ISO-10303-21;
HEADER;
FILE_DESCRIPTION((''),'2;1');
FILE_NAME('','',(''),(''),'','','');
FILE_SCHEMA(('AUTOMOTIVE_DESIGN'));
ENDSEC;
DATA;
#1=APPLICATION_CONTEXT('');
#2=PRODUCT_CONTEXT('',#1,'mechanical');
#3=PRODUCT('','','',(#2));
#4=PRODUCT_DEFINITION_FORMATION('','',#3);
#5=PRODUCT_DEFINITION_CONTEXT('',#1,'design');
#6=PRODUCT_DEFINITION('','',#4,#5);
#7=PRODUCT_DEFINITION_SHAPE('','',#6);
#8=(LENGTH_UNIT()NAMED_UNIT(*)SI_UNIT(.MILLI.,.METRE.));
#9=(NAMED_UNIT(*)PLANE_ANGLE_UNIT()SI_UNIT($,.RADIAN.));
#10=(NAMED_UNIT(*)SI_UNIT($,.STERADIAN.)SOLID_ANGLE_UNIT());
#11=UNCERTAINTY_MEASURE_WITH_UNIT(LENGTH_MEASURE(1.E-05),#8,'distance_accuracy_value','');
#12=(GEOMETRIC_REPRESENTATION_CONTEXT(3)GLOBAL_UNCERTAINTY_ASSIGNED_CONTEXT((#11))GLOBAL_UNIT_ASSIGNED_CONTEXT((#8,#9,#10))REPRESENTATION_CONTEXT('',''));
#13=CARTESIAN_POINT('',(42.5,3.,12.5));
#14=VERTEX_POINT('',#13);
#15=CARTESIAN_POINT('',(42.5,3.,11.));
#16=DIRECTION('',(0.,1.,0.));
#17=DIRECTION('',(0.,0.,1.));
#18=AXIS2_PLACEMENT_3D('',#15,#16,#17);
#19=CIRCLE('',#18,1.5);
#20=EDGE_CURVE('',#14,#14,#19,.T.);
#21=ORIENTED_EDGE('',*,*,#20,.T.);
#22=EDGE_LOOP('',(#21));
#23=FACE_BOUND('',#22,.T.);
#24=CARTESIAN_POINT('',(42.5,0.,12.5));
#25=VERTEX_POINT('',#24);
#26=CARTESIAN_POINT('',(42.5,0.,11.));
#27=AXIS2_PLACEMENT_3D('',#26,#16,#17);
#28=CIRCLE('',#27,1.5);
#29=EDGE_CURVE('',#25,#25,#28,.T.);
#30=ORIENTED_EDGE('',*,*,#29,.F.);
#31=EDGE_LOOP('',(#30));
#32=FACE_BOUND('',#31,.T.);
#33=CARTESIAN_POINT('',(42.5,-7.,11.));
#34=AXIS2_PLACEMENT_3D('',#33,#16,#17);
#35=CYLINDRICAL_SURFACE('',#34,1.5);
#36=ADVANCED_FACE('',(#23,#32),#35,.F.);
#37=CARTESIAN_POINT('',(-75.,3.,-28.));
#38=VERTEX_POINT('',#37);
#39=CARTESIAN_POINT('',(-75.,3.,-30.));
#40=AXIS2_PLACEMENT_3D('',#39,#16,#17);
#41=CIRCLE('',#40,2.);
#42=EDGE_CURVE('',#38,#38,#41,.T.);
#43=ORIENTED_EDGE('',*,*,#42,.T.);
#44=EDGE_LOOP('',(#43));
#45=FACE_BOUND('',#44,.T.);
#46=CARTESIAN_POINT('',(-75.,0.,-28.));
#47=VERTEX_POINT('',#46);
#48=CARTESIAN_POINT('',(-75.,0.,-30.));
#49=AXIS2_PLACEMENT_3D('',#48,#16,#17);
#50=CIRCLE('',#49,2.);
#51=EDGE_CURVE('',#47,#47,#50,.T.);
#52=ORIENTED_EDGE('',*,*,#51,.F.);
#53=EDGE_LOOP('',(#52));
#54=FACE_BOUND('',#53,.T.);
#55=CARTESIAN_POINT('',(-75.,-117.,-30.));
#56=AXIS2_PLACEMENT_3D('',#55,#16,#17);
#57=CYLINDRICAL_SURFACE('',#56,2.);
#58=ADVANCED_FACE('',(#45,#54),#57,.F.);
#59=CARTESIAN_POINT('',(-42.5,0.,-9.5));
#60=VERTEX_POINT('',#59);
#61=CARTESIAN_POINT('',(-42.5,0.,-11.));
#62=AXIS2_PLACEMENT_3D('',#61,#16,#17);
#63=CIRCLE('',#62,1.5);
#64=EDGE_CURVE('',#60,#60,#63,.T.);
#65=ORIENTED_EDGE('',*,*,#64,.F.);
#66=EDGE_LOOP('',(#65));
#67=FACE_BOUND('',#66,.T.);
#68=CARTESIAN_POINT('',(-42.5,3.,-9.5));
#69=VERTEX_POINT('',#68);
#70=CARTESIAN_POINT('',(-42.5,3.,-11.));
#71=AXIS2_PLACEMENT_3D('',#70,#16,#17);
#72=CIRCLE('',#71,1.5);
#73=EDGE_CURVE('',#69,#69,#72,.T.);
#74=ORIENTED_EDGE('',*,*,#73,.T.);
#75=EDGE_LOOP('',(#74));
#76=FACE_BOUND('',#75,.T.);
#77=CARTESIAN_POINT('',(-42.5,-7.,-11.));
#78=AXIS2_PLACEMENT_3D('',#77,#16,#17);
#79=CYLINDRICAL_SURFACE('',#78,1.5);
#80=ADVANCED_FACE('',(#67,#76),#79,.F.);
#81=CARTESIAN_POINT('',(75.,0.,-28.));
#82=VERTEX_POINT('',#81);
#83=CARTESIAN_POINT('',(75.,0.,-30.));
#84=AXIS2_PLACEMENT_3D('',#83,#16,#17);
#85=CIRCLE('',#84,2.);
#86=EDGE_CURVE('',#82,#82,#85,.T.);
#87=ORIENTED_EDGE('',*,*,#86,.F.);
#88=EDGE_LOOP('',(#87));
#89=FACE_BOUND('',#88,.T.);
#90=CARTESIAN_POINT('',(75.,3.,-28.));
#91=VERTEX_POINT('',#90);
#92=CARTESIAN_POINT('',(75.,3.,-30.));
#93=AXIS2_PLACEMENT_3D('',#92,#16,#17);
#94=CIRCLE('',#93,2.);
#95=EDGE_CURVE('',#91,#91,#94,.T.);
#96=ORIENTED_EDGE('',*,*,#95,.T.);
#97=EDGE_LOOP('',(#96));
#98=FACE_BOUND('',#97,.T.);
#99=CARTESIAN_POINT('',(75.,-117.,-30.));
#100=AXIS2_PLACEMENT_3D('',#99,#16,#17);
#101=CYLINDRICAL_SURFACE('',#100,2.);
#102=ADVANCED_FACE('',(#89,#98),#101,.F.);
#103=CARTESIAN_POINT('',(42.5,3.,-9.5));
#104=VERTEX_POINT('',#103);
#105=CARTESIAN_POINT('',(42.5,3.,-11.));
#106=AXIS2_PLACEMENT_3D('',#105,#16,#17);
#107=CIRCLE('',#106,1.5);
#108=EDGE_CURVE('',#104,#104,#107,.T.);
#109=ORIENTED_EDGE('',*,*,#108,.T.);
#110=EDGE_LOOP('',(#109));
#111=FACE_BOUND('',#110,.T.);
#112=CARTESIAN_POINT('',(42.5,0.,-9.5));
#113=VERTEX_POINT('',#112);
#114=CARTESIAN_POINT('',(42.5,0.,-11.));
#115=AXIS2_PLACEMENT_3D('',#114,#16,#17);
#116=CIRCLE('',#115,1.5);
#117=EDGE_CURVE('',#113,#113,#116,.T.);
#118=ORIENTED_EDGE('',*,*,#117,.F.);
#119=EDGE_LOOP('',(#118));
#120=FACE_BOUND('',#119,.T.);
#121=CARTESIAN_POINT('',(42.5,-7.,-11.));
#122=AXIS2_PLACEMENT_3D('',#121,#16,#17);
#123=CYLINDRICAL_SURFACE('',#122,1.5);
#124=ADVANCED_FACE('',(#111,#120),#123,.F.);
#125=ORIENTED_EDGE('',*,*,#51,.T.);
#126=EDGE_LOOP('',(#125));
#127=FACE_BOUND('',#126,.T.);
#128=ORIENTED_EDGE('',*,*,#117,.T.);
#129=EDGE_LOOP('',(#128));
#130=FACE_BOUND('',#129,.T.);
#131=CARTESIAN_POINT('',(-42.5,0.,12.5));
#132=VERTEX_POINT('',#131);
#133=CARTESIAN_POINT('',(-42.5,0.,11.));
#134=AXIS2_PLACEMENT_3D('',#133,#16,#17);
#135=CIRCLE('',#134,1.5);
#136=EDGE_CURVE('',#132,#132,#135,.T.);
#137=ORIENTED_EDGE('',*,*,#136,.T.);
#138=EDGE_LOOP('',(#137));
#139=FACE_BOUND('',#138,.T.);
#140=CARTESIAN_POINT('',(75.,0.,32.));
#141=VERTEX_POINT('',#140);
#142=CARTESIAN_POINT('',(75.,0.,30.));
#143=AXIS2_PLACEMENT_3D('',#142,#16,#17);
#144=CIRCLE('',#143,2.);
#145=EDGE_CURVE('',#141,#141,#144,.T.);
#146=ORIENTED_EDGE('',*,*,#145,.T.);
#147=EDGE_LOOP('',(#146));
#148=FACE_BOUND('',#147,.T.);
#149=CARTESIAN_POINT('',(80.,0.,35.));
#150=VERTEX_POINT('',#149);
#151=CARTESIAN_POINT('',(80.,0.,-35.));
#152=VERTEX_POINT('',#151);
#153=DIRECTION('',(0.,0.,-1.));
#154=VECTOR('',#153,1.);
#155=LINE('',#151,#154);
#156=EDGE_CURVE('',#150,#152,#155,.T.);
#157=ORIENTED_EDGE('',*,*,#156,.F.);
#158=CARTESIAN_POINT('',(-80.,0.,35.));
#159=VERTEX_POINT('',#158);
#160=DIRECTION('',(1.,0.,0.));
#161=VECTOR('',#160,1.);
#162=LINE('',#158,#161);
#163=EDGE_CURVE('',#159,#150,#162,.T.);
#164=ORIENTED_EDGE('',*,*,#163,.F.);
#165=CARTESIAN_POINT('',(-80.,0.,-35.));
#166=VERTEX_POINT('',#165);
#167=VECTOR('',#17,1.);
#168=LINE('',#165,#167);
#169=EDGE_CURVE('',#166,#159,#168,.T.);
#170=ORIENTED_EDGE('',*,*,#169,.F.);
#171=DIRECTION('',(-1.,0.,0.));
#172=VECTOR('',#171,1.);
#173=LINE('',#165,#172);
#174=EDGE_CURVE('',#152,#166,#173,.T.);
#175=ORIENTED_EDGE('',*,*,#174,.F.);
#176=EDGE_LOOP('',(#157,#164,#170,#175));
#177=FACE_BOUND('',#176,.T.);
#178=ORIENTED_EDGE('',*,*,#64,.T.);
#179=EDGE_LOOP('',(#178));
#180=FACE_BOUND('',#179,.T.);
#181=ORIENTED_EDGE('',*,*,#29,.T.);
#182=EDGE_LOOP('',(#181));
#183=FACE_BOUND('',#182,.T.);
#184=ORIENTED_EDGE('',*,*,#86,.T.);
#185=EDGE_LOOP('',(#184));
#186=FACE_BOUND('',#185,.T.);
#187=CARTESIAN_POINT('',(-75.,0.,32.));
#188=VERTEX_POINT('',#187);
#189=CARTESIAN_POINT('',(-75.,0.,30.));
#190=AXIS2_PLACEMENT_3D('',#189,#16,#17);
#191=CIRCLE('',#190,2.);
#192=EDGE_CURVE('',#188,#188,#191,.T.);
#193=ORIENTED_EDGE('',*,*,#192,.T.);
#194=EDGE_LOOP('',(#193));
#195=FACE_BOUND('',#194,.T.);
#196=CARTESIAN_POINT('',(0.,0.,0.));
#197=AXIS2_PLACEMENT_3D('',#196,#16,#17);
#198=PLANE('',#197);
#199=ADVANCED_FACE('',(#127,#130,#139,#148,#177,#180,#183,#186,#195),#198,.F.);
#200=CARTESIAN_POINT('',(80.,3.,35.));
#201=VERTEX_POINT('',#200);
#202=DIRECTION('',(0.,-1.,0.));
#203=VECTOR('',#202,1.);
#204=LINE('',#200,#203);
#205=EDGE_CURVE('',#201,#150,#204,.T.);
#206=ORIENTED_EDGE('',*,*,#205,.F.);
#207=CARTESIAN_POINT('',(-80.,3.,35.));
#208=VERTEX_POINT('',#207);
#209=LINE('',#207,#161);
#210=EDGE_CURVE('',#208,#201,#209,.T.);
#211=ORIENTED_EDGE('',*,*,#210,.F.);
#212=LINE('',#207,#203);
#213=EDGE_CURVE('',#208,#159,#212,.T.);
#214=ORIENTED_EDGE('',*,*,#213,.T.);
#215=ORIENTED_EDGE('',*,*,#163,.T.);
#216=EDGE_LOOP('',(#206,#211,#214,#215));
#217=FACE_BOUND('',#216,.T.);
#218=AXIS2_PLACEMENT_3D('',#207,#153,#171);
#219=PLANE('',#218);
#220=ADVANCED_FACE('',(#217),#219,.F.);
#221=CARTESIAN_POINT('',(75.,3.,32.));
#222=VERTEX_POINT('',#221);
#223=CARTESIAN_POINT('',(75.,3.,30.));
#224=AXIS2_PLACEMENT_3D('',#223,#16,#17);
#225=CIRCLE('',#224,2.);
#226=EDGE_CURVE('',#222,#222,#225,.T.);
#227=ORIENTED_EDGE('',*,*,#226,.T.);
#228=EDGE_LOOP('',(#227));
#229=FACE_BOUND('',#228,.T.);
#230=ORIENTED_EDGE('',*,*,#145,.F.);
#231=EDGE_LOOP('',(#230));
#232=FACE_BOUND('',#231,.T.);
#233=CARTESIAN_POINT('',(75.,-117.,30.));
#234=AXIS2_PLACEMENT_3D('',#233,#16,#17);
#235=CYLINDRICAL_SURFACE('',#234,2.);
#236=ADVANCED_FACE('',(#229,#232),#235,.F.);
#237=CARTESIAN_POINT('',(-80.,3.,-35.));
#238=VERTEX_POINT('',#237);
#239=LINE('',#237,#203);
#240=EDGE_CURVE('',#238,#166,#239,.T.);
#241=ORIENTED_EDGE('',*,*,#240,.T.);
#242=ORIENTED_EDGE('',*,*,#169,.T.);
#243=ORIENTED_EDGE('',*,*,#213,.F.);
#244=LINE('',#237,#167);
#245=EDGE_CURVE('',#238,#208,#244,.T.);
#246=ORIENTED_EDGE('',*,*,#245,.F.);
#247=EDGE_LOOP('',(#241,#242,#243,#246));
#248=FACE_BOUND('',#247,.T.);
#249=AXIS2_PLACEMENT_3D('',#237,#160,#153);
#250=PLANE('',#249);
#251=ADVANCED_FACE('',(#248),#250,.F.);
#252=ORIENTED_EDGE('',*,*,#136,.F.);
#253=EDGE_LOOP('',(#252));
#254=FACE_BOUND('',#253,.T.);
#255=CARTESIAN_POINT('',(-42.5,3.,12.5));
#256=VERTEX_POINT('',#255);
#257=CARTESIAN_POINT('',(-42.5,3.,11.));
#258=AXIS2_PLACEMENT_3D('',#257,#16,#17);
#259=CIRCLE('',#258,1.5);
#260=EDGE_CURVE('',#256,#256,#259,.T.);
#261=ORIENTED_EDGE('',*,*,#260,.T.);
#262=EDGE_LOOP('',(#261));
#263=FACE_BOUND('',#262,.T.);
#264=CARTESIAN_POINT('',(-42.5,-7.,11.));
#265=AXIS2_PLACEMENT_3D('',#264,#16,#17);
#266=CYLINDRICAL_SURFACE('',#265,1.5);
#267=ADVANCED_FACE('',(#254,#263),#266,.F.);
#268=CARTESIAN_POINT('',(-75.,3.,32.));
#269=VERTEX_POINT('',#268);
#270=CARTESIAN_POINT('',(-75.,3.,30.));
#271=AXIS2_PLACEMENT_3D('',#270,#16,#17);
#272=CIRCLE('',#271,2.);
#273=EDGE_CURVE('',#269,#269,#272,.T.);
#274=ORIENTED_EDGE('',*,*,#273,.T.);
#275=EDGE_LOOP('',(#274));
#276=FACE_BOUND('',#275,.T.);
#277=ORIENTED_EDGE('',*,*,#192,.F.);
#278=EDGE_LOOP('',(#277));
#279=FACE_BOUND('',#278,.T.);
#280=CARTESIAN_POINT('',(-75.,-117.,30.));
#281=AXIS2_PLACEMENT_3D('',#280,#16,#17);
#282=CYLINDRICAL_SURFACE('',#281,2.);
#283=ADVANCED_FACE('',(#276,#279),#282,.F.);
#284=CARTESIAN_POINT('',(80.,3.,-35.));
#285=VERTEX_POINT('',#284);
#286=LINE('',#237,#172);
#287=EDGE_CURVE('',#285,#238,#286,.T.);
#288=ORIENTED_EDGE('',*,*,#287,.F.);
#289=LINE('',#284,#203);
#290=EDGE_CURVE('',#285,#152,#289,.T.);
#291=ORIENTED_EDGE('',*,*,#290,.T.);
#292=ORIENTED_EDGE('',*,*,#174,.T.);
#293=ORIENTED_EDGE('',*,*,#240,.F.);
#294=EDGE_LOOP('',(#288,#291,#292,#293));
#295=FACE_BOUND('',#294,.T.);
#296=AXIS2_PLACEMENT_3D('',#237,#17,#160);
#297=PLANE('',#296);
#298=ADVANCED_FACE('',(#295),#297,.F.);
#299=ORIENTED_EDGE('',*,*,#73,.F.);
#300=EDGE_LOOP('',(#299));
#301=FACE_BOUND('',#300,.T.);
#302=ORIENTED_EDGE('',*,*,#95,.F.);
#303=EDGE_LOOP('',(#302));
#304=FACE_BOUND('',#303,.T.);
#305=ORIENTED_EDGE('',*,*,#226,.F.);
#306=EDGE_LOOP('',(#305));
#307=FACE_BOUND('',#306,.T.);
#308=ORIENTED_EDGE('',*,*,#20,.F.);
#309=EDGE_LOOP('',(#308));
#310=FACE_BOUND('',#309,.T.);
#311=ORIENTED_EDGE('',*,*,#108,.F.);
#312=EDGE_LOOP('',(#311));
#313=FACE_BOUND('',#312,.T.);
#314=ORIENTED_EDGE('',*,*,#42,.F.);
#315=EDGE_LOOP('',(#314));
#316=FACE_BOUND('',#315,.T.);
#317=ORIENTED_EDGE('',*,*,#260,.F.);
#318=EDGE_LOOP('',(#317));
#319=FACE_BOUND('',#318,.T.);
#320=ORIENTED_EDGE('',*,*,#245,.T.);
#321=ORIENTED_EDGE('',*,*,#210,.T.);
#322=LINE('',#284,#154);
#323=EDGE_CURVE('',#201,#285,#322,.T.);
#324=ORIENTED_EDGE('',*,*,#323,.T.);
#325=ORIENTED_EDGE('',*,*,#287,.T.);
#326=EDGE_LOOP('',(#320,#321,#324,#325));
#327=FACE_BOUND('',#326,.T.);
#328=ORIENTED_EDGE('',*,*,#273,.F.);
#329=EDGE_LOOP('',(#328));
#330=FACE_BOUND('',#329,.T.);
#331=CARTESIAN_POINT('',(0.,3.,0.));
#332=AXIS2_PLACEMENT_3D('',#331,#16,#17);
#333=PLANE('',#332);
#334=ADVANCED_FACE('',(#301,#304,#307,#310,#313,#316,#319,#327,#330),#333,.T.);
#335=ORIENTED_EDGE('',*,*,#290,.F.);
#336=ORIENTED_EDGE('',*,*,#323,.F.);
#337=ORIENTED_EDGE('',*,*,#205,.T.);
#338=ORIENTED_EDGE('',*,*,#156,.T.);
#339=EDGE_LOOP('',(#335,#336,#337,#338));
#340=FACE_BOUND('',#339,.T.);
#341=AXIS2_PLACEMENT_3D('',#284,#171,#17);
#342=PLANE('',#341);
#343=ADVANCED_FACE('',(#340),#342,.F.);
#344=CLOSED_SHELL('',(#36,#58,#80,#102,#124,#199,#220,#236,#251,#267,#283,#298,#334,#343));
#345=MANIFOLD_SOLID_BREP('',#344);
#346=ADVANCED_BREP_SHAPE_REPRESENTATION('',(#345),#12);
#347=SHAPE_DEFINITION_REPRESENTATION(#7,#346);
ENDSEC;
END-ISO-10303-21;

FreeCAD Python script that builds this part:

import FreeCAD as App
import Part
import Sketcher

V = App.Vector

doc = App.newDocument("Part")
params = doc.addObject("Spreadsheet::Sheet", "Params")
for row, (alias, value) in enumerate([
    ("sketch1_width", "160 mm"),
    ("sketch1_height", "70 mm"),
    ("pad1_length", "3 mm"),
    ("sketch2_diameter", "4 mm"),
    ("pocket1_length", "120 mm"),
    ("sketch3_diameter", "3 mm"),
    ("pocket2_length", "10 mm"),
], start=1):
    params.set(f"A{row}", alias)
    params.set(f"B{row}", "=" + value)
    params.setAlias(f"B{row}", alias)

body = doc.addObject("PartDesign::Body", "Body")

sketch1 = body.newObject("Sketcher::SketchObject", "Sketch")
sketch1.AttachmentSupport = (doc.getObject("XZ_Plane"), [""])
sketch1.MapMode = "FlatFace"
sketch1.addGeometry(Part.LineSegment(V(-80, -35, 0), V(-80, 35, 0)), False)
sketch1.addGeometry(Part.LineSegment(V(-80, 35, 0), V(80, 35, 0)), False)
sketch1.addGeometry(Part.LineSegment(V(80, 35, 0), V(80, -35, 0)), False)
sketch1.addGeometry(Part.LineSegment(V(80, -35, 0), V(-80, -35, 0)), False)
sketch1.addConstraint(Sketcher.Constraint("Coincident", 0, 2, 1, 1))
sketch1.addConstraint(Sketcher.Constraint("Coincident", 1, 2, 2, 1))
sketch1.addConstraint(Sketcher.Constraint("Coincident", 2, 2, 3, 1))
sketch1.addConstraint(Sketcher.Constraint("Coincident", 3, 2, 0, 1))
sketch1.addConstraint(Sketcher.Constraint("Vertical", 0))
sketch1.addConstraint(Sketcher.Constraint("Horizontal", 1))
sketch1.addConstraint(Sketcher.Constraint("Vertical", 2))
sketch1.addConstraint(Sketcher.Constraint("Horizontal", 3))
sketch1.addConstraint(Sketcher.Constraint("Symmetric", 0, 2, 2, 2, -1, 1))
sketch1.addConstraint(Sketcher.Constraint("DistanceX", 1, 1, 1, 2, 160.0))
sketch1.addConstraint(Sketcher.Constraint("DistanceY", 0, 1, 0, 2, 70.0))
sketch1.setExpression("Constraints[9]", "Params.sketch1_width")
sketch1.setExpression("Constraints[10]", "Params.sketch1_height")
pad1 = body.newObject("PartDesign::Pad", "Pad")
pad1.Profile = sketch1
pad1.setExpression("Length", "Params.pad1_length")
pad1.Reversed = True

sketch2 = body.newObject("Sketcher::SketchObject", "Sketch001")
sketch2.AttachmentSupport = (doc.getObject("XZ_Plane"), [""])
sketch2.MapMode = "FlatFace"
sketch2.AttachmentOffset = App.Placement(V(0, 0, -3), App.Rotation())
sketch2.addGeometry(Part.Circle(V(-75, -30, 0), V(0, 0, 1), 2), False)
sketch2.addGeometry(Part.Circle(V(-75, 30, 0), V(0, 0, 1), 2), False)
sketch2.addGeometry(Part.Circle(V(75, 30, 0), V(0, 0, 1), 2), False)
sketch2.addGeometry(Part.Circle(V(75, -30, 0), V(0, 0, 1), 2), False)
sketch2.addConstraint(Sketcher.Constraint("Equal", 0, 1))
sketch2.addConstraint(Sketcher.Constraint("Equal", 1, 2))
sketch2.addConstraint(Sketcher.Constraint("Equal", 2, 3))
sketch2.addConstraint(Sketcher.Constraint("Symmetric", 0, 3, 2, 3, -1, 1))
sketch2.addConstraint(Sketcher.Constraint("Symmetric", 1, 3, 3, 3, -1, 1))
sketch2.addConstraint(Sketcher.Constraint("Symmetric", 1, 3, 2, 3, -2))
sketch2.addConstraint(Sketcher.Constraint("Diameter", 0, 4.0))
sketch2.addConstraint(Sketcher.Constraint("DistanceX", 0, 3, -1, 1, 75.0))
sketch2.addConstraint(Sketcher.Constraint("DistanceY", 0, 3, -1, 1, 30.0))
sketch2.setExpression("Constraints[6]", "Params.sketch2_diameter")
pocket1 = body.newObject("PartDesign::Pocket", "Pocket")
pocket1.Profile = sketch2
pocket1.setExpression("Length", "Params.pocket1_length")
pocket1.Reversed = True

sketch3 = body.newObject("Sketcher::SketchObject", "Sketch002")
sketch3.AttachmentSupport = (doc.getObject("XZ_Plane"), [""])
sketch3.MapMode = "FlatFace"
sketch3.AttachmentOffset = App.Placement(V(0, 0, -3), App.Rotation())
sketch3.addGeometry(Part.Circle(V(-42.5, -11, 0), V(0, 0, 1), 1.5), False)
sketch3.addGeometry(Part.Circle(V(-42.5, 11, 0), V(0, 0, 1), 1.5), False)
sketch3.addGeometry(Part.Circle(V(42.5, 11, 0), V(0, 0, 1), 1.5), False)
sketch3.addGeometry(Part.Circle(V(42.5, -11, 0), V(0, 0, 1), 1.5), False)
sketch3.addConstraint(Sketcher.Constraint("Equal", 0, 1))
sketch3.addConstraint(Sketcher.Constraint("Equal", 1, 2))
sketch3.addConstraint(Sketcher.Constraint("Equal", 2, 3))
sketch3.addConstraint(Sketcher.Constraint("Symmetric", 0, 3, 2, 3, -1, 1))
sketch3.addConstraint(Sketcher.Constraint("Symmetric", 1, 3, 3, 3, -1, 1))
sketch3.addConstraint(Sketcher.Constraint("Symmetric", 1, 3, 2, 3, -2))
sketch3.addConstraint(Sketcher.Constraint("Diameter", 0, 3.0))
sketch3.addConstraint(Sketcher.Constraint("DistanceY", 0, 3, -1, 1, 11.0))
sketch3.addConstraint(Sketcher.Constraint("DistanceX", 1, 3, 2, 3, 85.0))
sketch3.setExpression("Constraints[6]", "Params.sketch3_diameter")
pocket2 = body.newObject("PartDesign::Pocket", "Pocket001")
pocket2.Profile = sketch3
pocket2.setExpression("Length", "Params.pocket2_length")
pocket2.Reversed = True

doc.recompute()
